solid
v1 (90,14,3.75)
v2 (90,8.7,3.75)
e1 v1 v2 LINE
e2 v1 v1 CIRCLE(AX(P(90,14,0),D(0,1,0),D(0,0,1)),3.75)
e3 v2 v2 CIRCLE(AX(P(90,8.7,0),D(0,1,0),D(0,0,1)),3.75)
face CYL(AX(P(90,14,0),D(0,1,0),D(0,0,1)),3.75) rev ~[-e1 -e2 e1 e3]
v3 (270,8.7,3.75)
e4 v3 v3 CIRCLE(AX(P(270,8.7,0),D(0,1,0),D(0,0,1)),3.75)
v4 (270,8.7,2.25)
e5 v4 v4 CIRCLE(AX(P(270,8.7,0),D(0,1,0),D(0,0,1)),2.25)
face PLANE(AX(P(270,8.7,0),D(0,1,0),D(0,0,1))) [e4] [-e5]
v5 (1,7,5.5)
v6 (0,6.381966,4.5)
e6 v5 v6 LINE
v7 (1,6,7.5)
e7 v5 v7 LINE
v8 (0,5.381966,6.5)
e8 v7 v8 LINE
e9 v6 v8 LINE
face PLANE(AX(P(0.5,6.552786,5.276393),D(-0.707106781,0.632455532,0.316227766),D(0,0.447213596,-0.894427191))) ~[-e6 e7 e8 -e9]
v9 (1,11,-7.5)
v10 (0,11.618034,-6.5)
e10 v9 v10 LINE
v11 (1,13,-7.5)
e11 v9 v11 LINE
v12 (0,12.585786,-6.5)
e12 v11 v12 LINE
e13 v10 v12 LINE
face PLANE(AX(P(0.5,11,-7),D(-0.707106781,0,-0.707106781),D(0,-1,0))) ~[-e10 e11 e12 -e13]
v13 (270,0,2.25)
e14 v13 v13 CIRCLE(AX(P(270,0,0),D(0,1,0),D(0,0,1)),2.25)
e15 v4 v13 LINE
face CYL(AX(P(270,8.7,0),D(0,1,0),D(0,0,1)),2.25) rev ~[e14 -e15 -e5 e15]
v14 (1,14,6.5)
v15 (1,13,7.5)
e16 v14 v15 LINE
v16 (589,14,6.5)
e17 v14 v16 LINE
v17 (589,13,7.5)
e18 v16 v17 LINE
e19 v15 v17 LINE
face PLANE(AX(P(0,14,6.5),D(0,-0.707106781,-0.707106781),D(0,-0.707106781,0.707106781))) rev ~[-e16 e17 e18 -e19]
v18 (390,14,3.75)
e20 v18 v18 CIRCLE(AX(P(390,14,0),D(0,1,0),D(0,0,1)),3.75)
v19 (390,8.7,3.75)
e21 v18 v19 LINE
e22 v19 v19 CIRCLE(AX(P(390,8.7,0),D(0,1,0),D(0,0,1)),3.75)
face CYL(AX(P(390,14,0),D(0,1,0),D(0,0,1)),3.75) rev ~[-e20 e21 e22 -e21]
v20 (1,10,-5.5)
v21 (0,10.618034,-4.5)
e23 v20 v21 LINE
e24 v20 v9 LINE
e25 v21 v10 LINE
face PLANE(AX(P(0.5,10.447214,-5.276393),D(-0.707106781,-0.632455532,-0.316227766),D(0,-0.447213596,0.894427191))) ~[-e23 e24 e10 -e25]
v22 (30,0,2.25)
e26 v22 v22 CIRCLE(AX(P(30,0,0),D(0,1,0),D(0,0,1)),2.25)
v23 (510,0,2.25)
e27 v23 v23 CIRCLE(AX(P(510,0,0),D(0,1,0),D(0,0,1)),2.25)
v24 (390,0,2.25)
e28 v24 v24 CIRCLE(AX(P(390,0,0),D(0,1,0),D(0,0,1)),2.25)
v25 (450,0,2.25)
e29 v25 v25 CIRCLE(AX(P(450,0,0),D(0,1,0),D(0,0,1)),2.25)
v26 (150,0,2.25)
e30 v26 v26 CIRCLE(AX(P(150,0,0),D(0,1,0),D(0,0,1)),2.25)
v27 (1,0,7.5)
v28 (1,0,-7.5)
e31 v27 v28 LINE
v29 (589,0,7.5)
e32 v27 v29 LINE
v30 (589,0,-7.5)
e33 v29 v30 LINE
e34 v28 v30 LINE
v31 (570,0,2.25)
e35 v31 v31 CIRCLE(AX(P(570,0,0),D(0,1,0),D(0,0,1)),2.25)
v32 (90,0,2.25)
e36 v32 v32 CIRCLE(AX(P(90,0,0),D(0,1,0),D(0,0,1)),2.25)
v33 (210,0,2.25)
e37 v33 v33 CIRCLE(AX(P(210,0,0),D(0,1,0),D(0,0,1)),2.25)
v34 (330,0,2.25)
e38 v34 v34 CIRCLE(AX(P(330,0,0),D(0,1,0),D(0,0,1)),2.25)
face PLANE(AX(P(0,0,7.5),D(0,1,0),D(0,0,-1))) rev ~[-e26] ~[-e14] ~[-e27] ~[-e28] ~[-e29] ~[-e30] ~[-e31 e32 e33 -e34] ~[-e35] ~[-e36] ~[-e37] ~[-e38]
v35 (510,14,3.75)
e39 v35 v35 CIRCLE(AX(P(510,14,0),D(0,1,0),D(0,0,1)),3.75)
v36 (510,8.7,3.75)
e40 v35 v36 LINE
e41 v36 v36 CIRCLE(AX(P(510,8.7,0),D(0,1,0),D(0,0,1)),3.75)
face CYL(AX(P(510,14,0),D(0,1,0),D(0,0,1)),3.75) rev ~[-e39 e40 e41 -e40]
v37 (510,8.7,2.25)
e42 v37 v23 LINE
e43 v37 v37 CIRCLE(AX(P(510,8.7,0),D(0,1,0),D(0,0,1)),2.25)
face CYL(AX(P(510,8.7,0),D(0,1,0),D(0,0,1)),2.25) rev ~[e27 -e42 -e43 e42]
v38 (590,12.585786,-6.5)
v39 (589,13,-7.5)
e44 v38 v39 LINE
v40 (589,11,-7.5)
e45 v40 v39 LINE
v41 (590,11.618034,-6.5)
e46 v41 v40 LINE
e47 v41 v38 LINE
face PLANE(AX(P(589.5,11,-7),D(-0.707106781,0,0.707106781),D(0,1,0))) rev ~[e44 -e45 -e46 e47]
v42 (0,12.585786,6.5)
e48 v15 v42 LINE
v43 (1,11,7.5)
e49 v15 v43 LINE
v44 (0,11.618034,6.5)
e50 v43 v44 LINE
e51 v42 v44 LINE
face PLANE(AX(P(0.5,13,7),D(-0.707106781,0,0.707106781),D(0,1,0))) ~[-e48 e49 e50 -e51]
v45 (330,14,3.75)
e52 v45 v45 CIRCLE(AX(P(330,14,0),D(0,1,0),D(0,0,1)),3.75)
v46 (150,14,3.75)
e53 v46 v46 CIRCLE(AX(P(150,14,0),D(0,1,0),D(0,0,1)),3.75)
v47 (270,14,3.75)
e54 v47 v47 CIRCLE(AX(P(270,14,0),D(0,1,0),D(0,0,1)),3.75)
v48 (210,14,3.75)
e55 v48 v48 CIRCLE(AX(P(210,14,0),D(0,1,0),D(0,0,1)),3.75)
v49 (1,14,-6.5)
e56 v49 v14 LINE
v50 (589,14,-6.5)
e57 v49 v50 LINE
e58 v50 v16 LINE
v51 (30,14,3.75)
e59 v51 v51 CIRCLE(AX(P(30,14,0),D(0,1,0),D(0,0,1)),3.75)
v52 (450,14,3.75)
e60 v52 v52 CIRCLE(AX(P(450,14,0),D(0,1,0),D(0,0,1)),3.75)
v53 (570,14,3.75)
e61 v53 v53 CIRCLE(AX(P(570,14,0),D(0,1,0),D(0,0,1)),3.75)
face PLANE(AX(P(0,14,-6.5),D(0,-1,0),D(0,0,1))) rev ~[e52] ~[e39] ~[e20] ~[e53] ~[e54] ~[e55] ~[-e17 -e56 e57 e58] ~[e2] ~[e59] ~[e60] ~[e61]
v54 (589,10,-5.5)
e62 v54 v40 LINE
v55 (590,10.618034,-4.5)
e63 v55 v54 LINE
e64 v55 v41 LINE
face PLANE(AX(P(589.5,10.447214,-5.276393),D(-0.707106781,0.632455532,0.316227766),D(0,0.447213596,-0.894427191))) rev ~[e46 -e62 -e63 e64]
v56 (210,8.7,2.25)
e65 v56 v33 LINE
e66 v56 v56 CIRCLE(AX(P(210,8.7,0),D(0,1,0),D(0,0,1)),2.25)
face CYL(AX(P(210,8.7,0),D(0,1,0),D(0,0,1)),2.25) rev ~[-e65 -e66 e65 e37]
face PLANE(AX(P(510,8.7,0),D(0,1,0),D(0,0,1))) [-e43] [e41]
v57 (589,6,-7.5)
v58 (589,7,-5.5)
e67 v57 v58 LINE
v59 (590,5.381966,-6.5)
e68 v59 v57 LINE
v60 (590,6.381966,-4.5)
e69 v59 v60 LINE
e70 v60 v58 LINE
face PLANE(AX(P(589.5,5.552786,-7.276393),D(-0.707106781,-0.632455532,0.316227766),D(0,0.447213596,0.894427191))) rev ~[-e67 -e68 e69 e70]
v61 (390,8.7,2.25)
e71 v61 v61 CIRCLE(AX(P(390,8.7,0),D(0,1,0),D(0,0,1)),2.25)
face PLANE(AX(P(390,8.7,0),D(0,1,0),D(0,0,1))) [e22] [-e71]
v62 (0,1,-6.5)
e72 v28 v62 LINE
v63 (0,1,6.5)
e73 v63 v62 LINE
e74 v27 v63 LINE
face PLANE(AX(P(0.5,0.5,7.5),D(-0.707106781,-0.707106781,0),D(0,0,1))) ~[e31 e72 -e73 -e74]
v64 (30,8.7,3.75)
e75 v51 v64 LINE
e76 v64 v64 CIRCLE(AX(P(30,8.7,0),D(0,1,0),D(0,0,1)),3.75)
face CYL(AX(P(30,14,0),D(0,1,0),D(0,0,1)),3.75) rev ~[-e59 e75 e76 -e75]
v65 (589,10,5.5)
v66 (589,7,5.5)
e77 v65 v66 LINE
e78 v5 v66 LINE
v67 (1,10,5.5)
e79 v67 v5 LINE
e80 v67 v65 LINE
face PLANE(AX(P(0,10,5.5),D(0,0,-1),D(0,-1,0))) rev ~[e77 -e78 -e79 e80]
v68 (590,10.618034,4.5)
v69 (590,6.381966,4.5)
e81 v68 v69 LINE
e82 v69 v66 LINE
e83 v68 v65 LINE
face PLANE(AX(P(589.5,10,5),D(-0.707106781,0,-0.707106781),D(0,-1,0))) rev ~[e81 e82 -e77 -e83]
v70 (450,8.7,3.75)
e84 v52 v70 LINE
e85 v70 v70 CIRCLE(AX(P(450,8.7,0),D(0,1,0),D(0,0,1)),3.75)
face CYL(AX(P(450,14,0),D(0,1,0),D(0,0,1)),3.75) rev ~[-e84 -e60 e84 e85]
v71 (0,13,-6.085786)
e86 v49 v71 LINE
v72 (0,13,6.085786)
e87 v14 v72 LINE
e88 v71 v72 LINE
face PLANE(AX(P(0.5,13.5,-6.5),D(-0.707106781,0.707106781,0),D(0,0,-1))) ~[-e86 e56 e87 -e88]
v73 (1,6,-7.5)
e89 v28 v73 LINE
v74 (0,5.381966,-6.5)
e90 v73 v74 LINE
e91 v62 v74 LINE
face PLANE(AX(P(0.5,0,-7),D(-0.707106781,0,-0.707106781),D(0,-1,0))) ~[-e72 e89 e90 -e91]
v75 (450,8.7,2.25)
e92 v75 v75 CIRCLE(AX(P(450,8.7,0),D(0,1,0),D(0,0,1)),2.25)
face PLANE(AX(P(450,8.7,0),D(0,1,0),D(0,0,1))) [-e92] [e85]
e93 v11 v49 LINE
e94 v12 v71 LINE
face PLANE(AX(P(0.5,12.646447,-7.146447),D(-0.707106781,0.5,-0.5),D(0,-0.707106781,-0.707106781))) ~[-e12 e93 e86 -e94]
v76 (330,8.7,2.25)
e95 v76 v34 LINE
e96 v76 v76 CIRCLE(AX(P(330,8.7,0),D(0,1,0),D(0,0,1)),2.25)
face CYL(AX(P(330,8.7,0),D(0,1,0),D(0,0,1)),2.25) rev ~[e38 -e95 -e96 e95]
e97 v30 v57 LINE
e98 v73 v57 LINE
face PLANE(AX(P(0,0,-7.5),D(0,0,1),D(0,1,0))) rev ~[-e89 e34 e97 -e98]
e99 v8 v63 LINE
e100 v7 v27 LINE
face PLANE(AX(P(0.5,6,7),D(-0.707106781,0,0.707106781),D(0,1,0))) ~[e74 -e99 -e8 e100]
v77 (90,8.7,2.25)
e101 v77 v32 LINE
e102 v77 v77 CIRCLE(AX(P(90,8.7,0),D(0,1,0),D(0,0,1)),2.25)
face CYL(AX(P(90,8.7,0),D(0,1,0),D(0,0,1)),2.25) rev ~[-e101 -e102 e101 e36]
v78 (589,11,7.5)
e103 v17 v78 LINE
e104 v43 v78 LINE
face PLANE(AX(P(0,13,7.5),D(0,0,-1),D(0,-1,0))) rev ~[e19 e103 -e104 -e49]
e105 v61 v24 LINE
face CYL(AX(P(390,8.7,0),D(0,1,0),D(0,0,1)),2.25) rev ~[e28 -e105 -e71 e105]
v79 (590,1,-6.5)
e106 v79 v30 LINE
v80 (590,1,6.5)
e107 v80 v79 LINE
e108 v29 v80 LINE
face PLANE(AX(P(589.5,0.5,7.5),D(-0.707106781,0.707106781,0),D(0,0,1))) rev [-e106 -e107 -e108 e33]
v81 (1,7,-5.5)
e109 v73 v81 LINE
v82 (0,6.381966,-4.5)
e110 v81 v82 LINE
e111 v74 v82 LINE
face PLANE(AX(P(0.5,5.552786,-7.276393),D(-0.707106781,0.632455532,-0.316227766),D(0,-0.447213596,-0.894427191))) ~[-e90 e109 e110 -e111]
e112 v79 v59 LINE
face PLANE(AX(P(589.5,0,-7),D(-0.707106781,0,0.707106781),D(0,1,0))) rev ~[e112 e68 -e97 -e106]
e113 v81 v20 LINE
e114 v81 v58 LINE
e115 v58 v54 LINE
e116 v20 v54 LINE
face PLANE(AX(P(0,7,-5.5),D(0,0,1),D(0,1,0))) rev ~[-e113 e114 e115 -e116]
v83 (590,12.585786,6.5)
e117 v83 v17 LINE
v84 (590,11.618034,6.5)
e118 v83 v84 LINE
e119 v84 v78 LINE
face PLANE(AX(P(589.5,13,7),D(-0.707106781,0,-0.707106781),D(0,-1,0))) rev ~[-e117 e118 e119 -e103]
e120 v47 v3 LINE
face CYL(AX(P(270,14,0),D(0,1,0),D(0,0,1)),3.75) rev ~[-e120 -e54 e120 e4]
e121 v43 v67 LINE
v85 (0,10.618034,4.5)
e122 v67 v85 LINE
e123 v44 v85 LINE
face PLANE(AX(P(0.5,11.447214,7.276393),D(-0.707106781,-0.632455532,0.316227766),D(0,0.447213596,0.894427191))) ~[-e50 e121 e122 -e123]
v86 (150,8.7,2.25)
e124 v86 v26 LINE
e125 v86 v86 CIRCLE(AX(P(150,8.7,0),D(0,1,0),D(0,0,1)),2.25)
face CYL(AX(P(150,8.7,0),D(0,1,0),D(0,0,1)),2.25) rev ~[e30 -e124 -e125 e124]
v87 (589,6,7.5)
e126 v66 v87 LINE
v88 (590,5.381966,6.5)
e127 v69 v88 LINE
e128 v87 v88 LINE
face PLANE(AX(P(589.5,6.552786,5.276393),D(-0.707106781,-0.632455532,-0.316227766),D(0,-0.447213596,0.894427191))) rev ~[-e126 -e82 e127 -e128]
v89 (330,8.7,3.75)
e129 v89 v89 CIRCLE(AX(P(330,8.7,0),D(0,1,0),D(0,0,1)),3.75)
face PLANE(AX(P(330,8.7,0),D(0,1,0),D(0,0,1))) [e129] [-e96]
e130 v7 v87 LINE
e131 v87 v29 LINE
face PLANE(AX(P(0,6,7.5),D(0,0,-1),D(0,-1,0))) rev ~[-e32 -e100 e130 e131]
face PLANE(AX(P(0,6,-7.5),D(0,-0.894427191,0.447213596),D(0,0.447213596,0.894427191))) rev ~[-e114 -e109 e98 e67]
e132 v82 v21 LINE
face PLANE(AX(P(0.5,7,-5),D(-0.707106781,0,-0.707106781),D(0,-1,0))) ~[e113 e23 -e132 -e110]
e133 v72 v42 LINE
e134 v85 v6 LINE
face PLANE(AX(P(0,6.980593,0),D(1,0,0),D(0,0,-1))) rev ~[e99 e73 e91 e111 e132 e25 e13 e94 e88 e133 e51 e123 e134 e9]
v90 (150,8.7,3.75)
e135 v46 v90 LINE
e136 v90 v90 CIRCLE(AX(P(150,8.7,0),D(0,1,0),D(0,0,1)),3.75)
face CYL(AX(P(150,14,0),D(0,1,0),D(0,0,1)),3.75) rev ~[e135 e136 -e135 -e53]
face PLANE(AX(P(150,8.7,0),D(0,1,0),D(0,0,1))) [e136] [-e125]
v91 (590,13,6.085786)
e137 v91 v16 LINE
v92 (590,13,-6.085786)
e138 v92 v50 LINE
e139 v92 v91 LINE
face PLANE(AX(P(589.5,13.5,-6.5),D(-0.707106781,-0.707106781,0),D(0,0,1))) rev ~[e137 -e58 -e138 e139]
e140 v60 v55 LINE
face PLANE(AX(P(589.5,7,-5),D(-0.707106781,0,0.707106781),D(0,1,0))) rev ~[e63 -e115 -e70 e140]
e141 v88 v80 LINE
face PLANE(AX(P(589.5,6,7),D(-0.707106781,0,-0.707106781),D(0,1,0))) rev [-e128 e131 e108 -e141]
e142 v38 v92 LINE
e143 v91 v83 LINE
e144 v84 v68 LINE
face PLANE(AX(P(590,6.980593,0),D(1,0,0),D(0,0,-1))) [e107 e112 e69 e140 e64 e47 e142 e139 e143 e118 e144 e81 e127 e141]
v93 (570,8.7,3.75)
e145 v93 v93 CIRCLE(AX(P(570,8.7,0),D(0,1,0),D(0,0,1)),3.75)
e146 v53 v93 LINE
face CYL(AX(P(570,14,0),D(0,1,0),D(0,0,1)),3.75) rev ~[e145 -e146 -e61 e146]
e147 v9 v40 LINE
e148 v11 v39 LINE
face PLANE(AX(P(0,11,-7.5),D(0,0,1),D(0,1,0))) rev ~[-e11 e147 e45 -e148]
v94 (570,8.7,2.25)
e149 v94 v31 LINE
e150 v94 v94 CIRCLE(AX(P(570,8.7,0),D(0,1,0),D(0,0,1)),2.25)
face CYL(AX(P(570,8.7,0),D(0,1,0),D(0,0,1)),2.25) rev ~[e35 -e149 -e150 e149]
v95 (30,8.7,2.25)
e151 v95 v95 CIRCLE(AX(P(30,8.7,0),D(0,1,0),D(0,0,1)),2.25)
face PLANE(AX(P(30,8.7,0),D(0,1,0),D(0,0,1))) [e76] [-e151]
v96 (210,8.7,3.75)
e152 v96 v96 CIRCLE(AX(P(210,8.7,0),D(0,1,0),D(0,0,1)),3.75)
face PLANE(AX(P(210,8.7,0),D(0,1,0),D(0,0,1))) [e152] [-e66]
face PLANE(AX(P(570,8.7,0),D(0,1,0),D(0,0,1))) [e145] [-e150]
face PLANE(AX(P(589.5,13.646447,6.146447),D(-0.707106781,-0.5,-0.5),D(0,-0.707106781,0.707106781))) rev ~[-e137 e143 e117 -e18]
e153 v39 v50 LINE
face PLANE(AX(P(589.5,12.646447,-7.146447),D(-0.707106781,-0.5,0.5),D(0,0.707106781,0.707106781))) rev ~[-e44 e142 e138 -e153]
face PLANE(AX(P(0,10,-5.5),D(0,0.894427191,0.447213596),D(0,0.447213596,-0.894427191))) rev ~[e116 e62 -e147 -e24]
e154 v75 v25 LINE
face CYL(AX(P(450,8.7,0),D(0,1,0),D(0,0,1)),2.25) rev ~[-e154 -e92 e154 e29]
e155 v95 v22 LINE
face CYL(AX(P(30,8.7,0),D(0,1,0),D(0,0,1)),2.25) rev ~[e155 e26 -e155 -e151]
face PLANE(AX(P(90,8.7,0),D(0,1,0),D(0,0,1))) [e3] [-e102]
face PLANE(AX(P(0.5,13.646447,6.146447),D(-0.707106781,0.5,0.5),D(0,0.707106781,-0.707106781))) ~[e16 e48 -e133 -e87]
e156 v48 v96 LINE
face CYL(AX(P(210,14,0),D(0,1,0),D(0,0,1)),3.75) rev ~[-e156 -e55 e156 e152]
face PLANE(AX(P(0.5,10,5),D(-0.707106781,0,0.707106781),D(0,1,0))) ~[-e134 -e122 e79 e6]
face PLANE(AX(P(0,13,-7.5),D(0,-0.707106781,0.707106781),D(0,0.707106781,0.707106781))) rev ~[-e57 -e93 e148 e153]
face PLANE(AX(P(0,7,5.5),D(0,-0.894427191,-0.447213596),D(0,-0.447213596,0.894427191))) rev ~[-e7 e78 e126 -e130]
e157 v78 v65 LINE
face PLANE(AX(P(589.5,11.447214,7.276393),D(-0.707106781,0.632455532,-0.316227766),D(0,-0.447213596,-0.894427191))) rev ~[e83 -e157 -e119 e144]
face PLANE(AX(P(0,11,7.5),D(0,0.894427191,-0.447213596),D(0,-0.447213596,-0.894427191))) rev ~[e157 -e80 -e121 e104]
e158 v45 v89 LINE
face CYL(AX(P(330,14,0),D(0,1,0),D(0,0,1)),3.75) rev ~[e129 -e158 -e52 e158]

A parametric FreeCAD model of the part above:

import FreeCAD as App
import Part
import Sketcher


def edges_at(feature, points):
    """Names of the edges that pass closest to the given points."""
    edges = feature.Shape.Edges
    near = lambda p: min(range(len(edges)), key=lambda i: edges[i].distToShape(Part.Vertex(*p))[0])
    return sorted({f"Edge{near(p) + 1}" for p in points})


def add_polygon(sketch, points):
    """Adds a closed chain of lines whose ends are joined by coincident constraints."""
    first, n = sketch.GeometryCount, len(points)
    for a, b in zip(points, points[1:] + points[:1]):
        sketch.addGeometry(Part.LineSegment(App.Vector(*a, 0), App.Vector(*b, 0)), False)
    for i in range(n):
        sketch.addConstraint(Sketcher.Constraint("Coincident", first + i, 2, first + (i + 1) % n, 1))

doc = App.newDocument("Part")
body = doc.addObject("PartDesign::Body", "Body")

# Sketch on YZ plane
sketch1 = doc.addObject("Sketcher::SketchObject", "Sketch")
body.addObject(sketch1)
sketch1.AttachmentSupport = (doc.YZ_Plane, [""])
sketch1.MapMode = "FlatFace"
add_polygon(sketch1, [(0, 7.5), (0, -7.5), (6, -7.5), (7, -5.5), (10, -5.5), (11, -7.5), (13, -7.5), (14, -6.5), (14, 6.5), (13, 7.5), (11, 7.5), (10, 5.5), (7, 5.5), (6, 7.5)])  # lines 0-13
sketch1.addConstraint(Sketcher.Constraint("Vertical", 0))
sketch1.addConstraint(Sketcher.Constraint("Horizontal", 1))
sketch1.addConstraint(Sketcher.Constraint("Horizontal", 3))
sketch1.addConstraint(Sketcher.Constraint("Horizontal", 5))
sketch1.addConstraint(Sketcher.Constraint("Vertical", 7))
sketch1.addConstraint(Sketcher.Constraint("Horizontal", 9))
sketch1.addConstraint(Sketcher.Constraint("Horizontal", 11))
sketch1.addConstraint(Sketcher.Constraint("Horizontal", 13))
sketch1.addConstraint(Sketcher.Constraint("Symmetric", 0, 2, 13, 2, -1, 1))
sketch1.addConstraint(Sketcher.Constraint("Symmetric", 5, 2, 8, 2, -1))
sketch1.addConstraint(Sketcher.Constraint("Symmetric", 3, 2, 10, 2, -1))
sketch1.addConstraint(Sketcher.Constraint("Perpendicular", 6, 8))
sketch1.addConstraint(Sketcher.Constraint("Parallel", 2, 10))
sketch1.addConstraint(Sketcher.Constraint("Parallel", 4, 12))
sketch1.addConstraint(Sketcher.Constraint("Horizontal", 1, 2, 4, 2))
sketch1.addConstraint(Sketcher.Constraint("Vertical", 4, 2, 9, 2))
sketch1.addConstraint(Sketcher.Constraint("Vertical", 2, 2, 11, 2))
sketch1.addConstraint(Sketcher.Constraint("Equal", 6, 8))
sketch1.addConstraint(Sketcher.Constraint("DistanceX", 1, 1, 1, 2, 6.0))
sketch1.addConstraint(Sketcher.Constraint("DistanceX", 3, 1, 3, 2, 3.0))
sketch1.addConstraint(Sketcher.Constraint("DistanceX", 5, 1, 5, 2, 2.0))
sketch1.addConstraint(Sketcher.Constraint("DistanceY", 0, 2, 0, 1, 15.0))
sketch1.addConstraint(Sketcher.Constraint("DistanceY", 7, 1, 7, 2, 13.0))
sketch1.addConstraint(Sketcher.Constraint("DistanceX", -1, 1, 2, 2, 7.0))
sketch1.addConstraint(Sketcher.Constraint("DistanceY", 1, 2, 2, 2, 2.0))
pad1 = doc.addObject("PartDesign::Pad", "Pad")
body.addObject(pad1)
pad1.Profile = sketch1
pad1.Length = 590
doc.recompute()

chamfer = doc.addObject("PartDesign::Chamfer", "Chamfer")
body.addObject(chamfer)
chamfer.Base = (pad1, edges_at(pad1, [
    (0, 6.5, 6.5),
    (0, 8.5, 5.5),
    (0, 10.5, 6.5),
    (0, 12, 7.5),
    (0, 13.5, 7),
    (0, 14, 0),
    (0, 13.5, -7),
    (0, 12, -7.5),
    (0, 10.5, -6.5),
    (0, 8.5, -5.5),
    (0, 6.5, -6.5),
    (0, 3, -7.5),
    (0, 0, 0),
    (0, 3, 7.5),
]))
chamfer.Size = 1
doc.recompute()

chamfer2 = doc.addObject("PartDesign::Chamfer", "Chamfer001")
body.addObject(chamfer2)
chamfer2.Base = (chamfer, edges_at(chamfer, [
    (590, 3, -7.5),
    (590, 6.5, -6.5),
    (590, 8.5, -5.5),
    (590, 10.5, -6.5),
    (590, 12, -7.5),
    (590, 13.5, -7),
    (590, 14, 0),
    (590, 13.5, 7),
    (590, 12, 7.5),
    (590, 10.5, 6.5),
    (590, 3, 7.5),
    (590, 8.5, 5.5),
    (590, 6.5, 6.5),
    (590, 0, 0),
]))
chamfer2.Size = 1

# Sketch on XZ plane
sketch2 = doc.addObject("Sketcher::SketchObject", "Sketch001")
body.addObject(sketch2)
sketch2.AttachmentSupport = (doc.XZ_Plane, [""])
sketch2.MapMode = "FlatFace"
sketch2.AttachmentOffset = App.Placement(App.Vector(0, 0, -14), App.Rotation())
sketch2.addGeometry(Part.Circle(App.Vector(570, 0, 0), App.Vector(0, 0, 1), 3.8), False)
sketch2.addConstraint(Sketcher.Constraint("PointOnObject", 0, 3, -1))
sketch2.addConstraint(Sketcher.Constraint("Diameter", 0, 7.5))
sketch2.addConstraint(Sketcher.Constraint("DistanceX", -1, 1, 0, 3, 570.0))
pocket1 = doc.addObject("PartDesign::Pocket", "Pocket")
body.addObject(pocket1)
pocket1.Profile = sketch2
pocket1.Length = 5.3
pocket1.Reversed = True

# Sketch on XZ plane
sketch3 = doc.addObject("Sketcher::SketchObject", "Sketch002")
body.addObject(sketch3)
sketch3.AttachmentSupport = (doc.XZ_Plane, [""])
sketch3.MapMode = "FlatFace"
sketch3.AttachmentOffset = App.Placement(App.Vector(0, 0, -8.7), App.Rotation())
sketch3.addGeometry(Part.Circle(App.Vector(570, 0, 0), App.Vector(0, 0, 1), 2.2), False)
sketch3.addConstraint(Sketcher.Constraint("PointOnObject", 0, 3, -1))
sketch3.addConstraint(Sketcher.Constraint("Diameter", 0, 4.5))
sketch3.addConstraint(Sketcher.Constraint("DistanceX", -1, 1, 0, 3, 570.0))
pocket2 = doc.addObject("PartDesign::Pocket", "Pocket001")
body.addObject(pocket2)
pocket2.Profile = sketch3
pocket2.Type = "ThroughAll"
pocket2.Reversed = True
doc.recompute()

linearpattern = doc.addObject("PartDesign::LinearPattern", "LinearPattern")
body.addObject(linearpattern)
linearpattern.Originals = [pocket1, pocket2]
linearpattern.Direction = (doc.X_Axis, [""])
linearpattern.Mode = "offset"
linearpattern.Offset = 60
linearpattern.Occurrences = 67
linearpattern.Reversed = True
body.Tip = linearpattern

doc.recompute()
